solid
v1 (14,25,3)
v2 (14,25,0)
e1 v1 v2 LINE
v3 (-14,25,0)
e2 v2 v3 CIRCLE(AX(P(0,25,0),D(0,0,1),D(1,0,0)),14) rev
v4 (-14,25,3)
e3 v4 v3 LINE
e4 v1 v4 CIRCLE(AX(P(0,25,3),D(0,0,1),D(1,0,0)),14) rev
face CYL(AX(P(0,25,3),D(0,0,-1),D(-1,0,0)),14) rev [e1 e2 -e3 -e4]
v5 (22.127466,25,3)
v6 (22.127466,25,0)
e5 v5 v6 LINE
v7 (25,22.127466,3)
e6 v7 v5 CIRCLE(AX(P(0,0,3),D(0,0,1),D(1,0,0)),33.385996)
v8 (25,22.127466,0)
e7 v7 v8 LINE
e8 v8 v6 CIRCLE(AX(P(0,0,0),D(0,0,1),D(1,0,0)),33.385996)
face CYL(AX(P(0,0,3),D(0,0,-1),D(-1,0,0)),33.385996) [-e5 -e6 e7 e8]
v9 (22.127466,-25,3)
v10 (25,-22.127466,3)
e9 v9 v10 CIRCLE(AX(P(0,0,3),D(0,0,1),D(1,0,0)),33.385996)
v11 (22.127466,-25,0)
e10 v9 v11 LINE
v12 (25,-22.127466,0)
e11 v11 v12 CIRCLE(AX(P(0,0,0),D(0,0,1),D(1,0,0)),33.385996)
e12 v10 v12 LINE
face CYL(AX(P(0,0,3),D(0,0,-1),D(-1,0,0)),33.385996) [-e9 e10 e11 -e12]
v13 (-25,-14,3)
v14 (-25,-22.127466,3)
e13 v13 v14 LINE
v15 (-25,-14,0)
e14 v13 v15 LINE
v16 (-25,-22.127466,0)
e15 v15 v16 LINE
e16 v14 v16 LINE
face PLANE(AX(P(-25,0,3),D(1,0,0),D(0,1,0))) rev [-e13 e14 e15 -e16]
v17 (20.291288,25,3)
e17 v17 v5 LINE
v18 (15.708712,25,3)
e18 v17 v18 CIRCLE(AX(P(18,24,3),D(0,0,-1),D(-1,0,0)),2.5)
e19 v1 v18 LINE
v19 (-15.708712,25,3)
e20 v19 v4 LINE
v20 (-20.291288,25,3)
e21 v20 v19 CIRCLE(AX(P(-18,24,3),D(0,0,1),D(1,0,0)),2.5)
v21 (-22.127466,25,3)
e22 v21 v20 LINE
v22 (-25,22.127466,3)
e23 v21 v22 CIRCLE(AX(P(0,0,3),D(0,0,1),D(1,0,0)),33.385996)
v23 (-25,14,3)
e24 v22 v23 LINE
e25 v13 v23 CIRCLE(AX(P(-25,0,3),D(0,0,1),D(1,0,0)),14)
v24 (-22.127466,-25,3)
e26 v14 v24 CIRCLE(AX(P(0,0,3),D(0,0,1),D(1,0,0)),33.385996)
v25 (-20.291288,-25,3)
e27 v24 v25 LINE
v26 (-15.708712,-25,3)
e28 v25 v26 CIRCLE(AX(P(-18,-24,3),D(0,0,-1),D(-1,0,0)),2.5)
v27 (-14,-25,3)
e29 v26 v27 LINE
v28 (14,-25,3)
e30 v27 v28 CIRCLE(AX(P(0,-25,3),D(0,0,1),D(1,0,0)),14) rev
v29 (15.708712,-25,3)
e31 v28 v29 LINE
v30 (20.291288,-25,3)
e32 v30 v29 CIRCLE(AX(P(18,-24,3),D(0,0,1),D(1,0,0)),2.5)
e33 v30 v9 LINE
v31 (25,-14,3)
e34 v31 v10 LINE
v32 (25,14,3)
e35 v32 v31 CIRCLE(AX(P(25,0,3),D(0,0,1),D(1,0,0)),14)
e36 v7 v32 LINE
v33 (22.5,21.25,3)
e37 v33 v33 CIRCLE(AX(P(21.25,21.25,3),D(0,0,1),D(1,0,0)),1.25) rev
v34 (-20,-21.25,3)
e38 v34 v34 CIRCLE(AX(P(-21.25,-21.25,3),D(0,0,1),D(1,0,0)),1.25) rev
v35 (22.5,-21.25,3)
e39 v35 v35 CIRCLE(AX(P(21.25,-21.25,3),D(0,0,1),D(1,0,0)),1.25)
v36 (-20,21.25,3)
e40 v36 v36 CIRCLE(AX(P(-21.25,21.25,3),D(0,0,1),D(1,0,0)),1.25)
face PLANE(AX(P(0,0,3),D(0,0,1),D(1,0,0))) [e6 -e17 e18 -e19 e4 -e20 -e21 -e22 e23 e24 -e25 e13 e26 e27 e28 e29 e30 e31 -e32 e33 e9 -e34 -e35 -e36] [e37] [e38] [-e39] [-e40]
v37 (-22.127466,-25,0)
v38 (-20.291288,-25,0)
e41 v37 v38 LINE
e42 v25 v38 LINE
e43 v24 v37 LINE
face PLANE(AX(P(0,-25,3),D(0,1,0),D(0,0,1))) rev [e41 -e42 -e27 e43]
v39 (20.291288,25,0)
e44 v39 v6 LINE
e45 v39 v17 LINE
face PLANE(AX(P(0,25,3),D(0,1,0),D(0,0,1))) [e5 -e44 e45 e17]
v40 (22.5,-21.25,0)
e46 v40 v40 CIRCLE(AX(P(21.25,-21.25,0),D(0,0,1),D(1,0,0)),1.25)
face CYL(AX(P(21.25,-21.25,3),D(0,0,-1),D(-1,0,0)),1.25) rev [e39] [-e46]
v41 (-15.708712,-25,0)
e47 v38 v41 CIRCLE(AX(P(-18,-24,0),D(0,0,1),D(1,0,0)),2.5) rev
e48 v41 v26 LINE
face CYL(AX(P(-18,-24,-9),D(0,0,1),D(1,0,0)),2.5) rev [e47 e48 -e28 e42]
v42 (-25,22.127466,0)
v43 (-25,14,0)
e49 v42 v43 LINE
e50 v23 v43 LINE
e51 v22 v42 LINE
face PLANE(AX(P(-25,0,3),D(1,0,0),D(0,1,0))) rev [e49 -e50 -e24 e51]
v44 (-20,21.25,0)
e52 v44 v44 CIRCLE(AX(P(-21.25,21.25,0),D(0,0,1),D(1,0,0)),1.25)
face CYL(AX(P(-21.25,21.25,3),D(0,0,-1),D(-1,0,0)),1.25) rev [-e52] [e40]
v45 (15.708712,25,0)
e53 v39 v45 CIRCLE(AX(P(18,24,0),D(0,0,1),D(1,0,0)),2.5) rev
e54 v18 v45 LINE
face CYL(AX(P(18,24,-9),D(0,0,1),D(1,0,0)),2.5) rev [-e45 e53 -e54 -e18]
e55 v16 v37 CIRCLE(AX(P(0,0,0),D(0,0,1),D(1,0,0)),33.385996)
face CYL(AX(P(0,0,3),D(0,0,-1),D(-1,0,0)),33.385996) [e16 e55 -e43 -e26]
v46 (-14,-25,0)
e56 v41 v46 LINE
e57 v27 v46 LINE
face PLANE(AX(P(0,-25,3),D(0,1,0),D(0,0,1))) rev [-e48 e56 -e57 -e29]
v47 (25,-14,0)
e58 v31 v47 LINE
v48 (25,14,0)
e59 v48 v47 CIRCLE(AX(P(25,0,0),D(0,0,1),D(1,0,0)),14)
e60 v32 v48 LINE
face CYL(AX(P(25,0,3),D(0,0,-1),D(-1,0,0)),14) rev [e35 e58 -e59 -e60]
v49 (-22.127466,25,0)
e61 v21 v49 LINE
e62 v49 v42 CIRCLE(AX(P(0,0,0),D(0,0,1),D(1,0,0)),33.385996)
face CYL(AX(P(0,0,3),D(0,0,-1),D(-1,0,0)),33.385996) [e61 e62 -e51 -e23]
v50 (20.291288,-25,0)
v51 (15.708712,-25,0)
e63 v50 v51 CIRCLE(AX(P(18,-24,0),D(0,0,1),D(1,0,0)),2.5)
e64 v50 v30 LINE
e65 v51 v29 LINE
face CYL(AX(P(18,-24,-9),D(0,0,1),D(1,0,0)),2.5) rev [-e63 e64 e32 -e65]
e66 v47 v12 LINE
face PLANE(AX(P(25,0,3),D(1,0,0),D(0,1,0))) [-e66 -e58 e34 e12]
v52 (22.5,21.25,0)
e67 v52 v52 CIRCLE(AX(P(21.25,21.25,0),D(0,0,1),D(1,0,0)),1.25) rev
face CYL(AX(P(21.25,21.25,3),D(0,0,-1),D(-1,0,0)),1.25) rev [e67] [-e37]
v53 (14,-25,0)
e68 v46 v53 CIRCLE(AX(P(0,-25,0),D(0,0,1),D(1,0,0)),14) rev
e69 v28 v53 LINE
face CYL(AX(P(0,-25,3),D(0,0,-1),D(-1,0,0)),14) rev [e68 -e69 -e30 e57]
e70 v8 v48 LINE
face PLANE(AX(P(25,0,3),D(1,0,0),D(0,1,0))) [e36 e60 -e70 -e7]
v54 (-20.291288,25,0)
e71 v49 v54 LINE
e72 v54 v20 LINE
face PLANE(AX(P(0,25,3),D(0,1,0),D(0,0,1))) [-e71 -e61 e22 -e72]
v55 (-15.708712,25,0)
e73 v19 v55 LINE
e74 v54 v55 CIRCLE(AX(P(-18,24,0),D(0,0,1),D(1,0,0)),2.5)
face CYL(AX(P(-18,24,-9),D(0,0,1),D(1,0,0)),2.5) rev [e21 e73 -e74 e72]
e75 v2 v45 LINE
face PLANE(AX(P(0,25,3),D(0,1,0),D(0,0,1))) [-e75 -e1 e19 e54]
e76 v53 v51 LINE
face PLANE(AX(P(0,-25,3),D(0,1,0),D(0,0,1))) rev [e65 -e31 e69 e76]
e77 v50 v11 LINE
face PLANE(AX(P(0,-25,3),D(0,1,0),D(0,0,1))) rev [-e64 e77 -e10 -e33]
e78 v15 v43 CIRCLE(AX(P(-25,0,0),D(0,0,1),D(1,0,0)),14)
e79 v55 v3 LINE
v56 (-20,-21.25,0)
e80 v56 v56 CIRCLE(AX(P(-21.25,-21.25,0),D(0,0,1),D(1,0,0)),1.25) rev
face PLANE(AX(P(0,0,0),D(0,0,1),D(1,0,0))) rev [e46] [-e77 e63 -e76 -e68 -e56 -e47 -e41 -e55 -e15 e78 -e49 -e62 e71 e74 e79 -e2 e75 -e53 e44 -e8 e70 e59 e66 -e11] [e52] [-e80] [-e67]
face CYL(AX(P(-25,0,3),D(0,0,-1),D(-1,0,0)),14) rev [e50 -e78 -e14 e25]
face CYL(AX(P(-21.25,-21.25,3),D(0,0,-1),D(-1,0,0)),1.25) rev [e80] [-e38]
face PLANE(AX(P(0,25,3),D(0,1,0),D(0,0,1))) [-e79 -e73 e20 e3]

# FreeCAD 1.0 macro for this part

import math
import FreeCAD as App
import Part
import Sketcher
Q = App.Units.Quantity

doc = App.newDocument("Part")
params = doc.addObject("Spreadsheet::Sheet", "Params")
for row, (alias, value) in enumerate([
    ("sketch1_radius", "14 mm"),
    ("sketch1_diameter", "2.5 mm"),
    ("pad1_length", "3 mm"),
    ("sketch2_diameter", "5 mm"),
    ("pocket1_length", "12 mm"),
], start=1):
    params.set(f"A{row}", alias)
    params.set(f"B{row}", "=" + value)
    params.setAlias(f"B{row}", alias)

body = doc.addObject("PartDesign::Body", "Body")

sketch1 = body.newObject("Sketcher::SketchObject", "Sketch")
sketch1.AttachmentSupport = (doc.getObject("XY_Plane"), [""])
sketch1.MapMode = "FlatFace"
sketch1.addGeometry(Part.LineSegment(App.Vector(-14, 25, 0), App.Vector(-22.127466, 25, 0)), False)
sketch1.addGeometry(Part.ArcOfCircle(Part.Circle(App.Vector(0, 0, 0), App.Vector(0, 0, 1), 33.385996), math.radians(131.511998), math.radians(138.488002)), False)
sketch1.addGeometry(Part.LineSegment(App.Vector(-25, 22.127466, 0), App.Vector(-25, 14, 0)), False)
sketch1.addGeometry(Part.ArcOfCircle(Part.Circle(App.Vector(-25, 0, 0), App.Vector(0, 0, 1), 14), math.radians(0), math.radians(90)), False)
sketch1.addGeometry(Part.ArcOfCircle(Part.Circle(App.Vector(-25, 0, 0), App.Vector(0, 0, 1), 14), math.radians(-90), math.radians(0)), False)
sketch1.addGeometry(Part.LineSegment(App.Vector(-25, -14, 0), App.Vector(-25, -22.127466, 0)), False)
sketch1.addGeometry(Part.ArcOfCircle(Part.Circle(App.Vector(0, 0, 0), App.Vector(0, 0, 1), 33.385996), math.radians(-138.488002), math.radians(-131.511998)), False)
sketch1.addGeometry(Part.LineSegment(App.Vector(-22.127466, -25, 0), App.Vector(-14, -25, 0)), False)
sketch1.addGeometry(Part.ArcOfCircle(Part.Circle(App.Vector(0, -25, 0), App.Vector(0, 0, 1), 14), math.radians(0), math.radians(180)), False)
sketch1.addGeometry(Part.LineSegment(App.Vector(14, -25, 0), App.Vector(22.127466, -25, 0)), False)
sketch1.addGeometry(Part.ArcOfCircle(Part.Circle(App.Vector(0, 0, 0), App.Vector(0, 0, 1), 33.385996), math.radians(-48.488002), math.radians(-41.511998)), False)
sketch1.addGeometry(Part.LineSegment(App.Vector(25, -22.127466, 0), App.Vector(25, -14, 0)), False)
sketch1.addGeometry(Part.ArcOfCircle(Part.Circle(App.Vector(25, 0, 0), App.Vector(0, 0, 1), 14), math.radians(90), math.radians(270)), False)
sketch1.addGeometry(Part.LineSegment(App.Vector(25, 14, 0), App.Vector(25, 22.127466, 0)), False)
sketch1.addGeometry(Part.ArcOfCircle(Part.Circle(App.Vector(0, 0, 0), App.Vector(0, 0, 1), 33.385996), math.radians(41.511998), math.radians(48.488002)), False)
sketch1.addGeometry(Part.LineSegment(App.Vector(22.127466, 25, 0), App.Vector(14, 25, 0)), False)
sketch1.addGeometry(Part.ArcOfCircle(Part.Circle(App.Vector(0, 25, 0), App.Vector(0, 0, 1), 14), math.radians(180), math.radians(360)), False)
sketch1.addGeometry(Part.Circle(App.Vector(-21.25, -21.25, 0), App.Vector(0, 0, 1), 1.25), False)
sketch1.addGeometry(Part.Circle(App.Vector(21.25, -21.25, 0), App.Vector(0, 0, 1), 1.25), False)
sketch1.addGeometry(Part.Circle(App.Vector(-21.25, 21.25, 0), App.Vector(0, 0, 1), 1.25), False)
sketch1.addGeometry(Part.Circle(App.Vector(21.25, 21.25, 0), App.Vector(0, 0, 1), 1.25), False)
sketch1.addConstraint(Sketcher.Constraint("Coincident", 0, 2, 1, 1))
sketch1.addConstraint(Sketcher.Constraint("Coincident", 1, 2, 2, 1))
sketch1.addConstraint(Sketcher.Constraint("Coincident", 2, 2, 3, 2))
sketch1.addConstraint(Sketcher.Constraint("Tangent", 3, 1, 4, 2))
sketch1.addConstraint(Sketcher.Constraint("Coincident", 4, 1, 5, 1))
sketch1.addConstraint(Sketcher.Constraint("Coincident", 5, 2, 6, 1))
sketch1.addConstraint(Sketcher.Constraint("Coincident", 6, 2, 7, 1))
sketch1.addConstraint(Sketcher.Constraint("Coincident", 7, 2, 8, 2))
sketch1.addConstraint(Sketcher.Constraint("Coincident", 8, 1, 9, 1))
sketch1.addConstraint(Sketcher.Constraint("Coincident", 9, 2, 10, 1))
sketch1.addConstraint(Sketcher.Constraint("Coincident", 10, 2, 11, 1))
sketch1.addConstraint(Sketcher.Constraint("Coincident", 11, 2, 12, 2))
sketch1.addConstraint(Sketcher.Constraint("Coincident", 12, 1, 13, 1))
sketch1.addConstraint(Sketcher.Constraint("Coincident", 13, 2, 14, 1))
sketch1.addConstraint(Sketcher.Constraint("Coincident", 14, 2, 15, 1))
sketch1.addConstraint(Sketcher.Constraint("Coincident", 15, 2, 16, 2))
sketch1.addConstraint(Sketcher.Constraint("Coincident", 16, 1, 0, 1))
sketch1.addConstraint(Sketcher.Constraint("Horizontal", 0))
sketch1.addConstraint(Sketcher.Constraint("Vertical", 2))
sketch1.addConstraint(Sketcher.Constraint("Vertical", 5))
sketch1.addConstraint(Sketcher.Constraint("Horizontal", 7))
sketch1.addConstraint(Sketcher.Constraint("Horizontal", 9))
sketch1.addConstraint(Sketcher.Constraint("Vertical", 11))
sketch1.addConstraint(Sketcher.Constraint("Vertical", 13))
sketch1.addConstraint(Sketcher.Constraint("Horizontal", 15))
sketch1.addConstraint(Sketcher.Constraint("Coincident", 1, 3, -1, 1))
sketch1.addConstraint(Sketcher.Constraint("Coincident", 6, 3, -1, 1))
sketch1.addConstraint(Sketcher.Constraint("Coincident", 10, 3, -1, 1))
sketch1.addConstraint(Sketcher.Constraint("Coincident", 14, 3, -1, 1))
sketch1.addConstraint(Sketcher.Constraint("Equal", 3, 4))
sketch1.addConstraint(Sketcher.Constraint("Equal", 1, 6))
sketch1.addConstraint(Sketcher.Constraint("Equal", 4, 8))
sketch1.addConstraint(Sketcher.Constraint("Equal", 6, 10))
sketch1.addConstraint(Sketcher.Constraint("Equal", 8, 12))
sketch1.addConstraint(Sketcher.Constraint("Equal", 10, 14))
sketch1.addConstraint(Sketcher.Constraint("Equal", 12, 16))
sketch1.addConstraint(Sketcher.Constraint("Equal", 17, 18))
sketch1.addConstraint(Sketcher.Constraint("Equal", 18, 19))
sketch1.addConstraint(Sketcher.Constraint("Equal", 19, 20))
sketch1.addConstraint(Sketcher.Constraint("Symmetric", 3, 3, 12, 3, -1, 1))
sketch1.addConstraint(Sketcher.Constraint("Symmetric", 8, 3, 16, 3, -1, 1))
sketch1.addConstraint(Sketcher.Constraint("Symmetric", 18, 3, 19, 3, -1, 1))
sketch1.addConstraint(Sketcher.Constraint("Symmetric", 17, 3, 20, 3, -1, 1))
sketch1.addConstraint(Sketcher.Constraint("Symmetric", 17, 3, 18, 3, -2))
sketch1.addConstraint(Sketcher.Constraint("Symmetric", 7, 2, 8, 1, -2))
sketch1.addConstraint(Sketcher.Constraint("Symmetric", 4, 1, 11, 2, -2))
sketch1.addConstraint(Sketcher.Constraint("PointOnObject", 3, 1, -1))
sketch1.addConstraint(Sketcher.Constraint("Horizontal", 16, 3, 0, 2))
sketch1.addConstraint(Sketcher.Constraint("Horizontal", 8, 3, 6, 2))
sketch1.addConstraint(Sketcher.Constraint("Horizontal", 1, 2, 13, 2))
sketch1.addConstraint(Sketcher.Constraint("Horizontal", 0, 2, 14, 2))
sketch1.addConstraint(Sketcher.Constraint("Vertical", 4, 3, 1, 2))
sketch1.addConstraint(Sketcher.Constraint("Vertical", 2, 2, 4, 1))
sketch1.addConstraint(Sketcher.Constraint("Equal", 15, 2))
sketch1.addConstraint(Sketcher.Constraint("Radius", 3, Q("14 mm")))
sketch1.addConstraint(Sketcher.Constraint("Diameter", 17, Q("2.5 mm")))
sketch1.addConstraint(Sketcher.Constraint("DistanceX", 3, 3, -1, 1, Q("25 mm")))
sketch1.addConstraint(Sketcher.Constraint("DistanceX", 17, 3, -1, 1, Q("21.25 mm")))
sketch1.addConstraint(Sketcher.Constraint("DistanceY", 17, 3, -1, 1, Q("21.25 mm")))
sketch1.addConstraint(Sketcher.Constraint("Radius", 1, Q("33.385996 mm")))
sketch1.setExpression("Constraints[54]", "Params.sketch1_radius")
sketch1.setExpression("Constraints[55]", "Params.sketch1_diameter")
pad1 = body.newObject("PartDesign::Pad", "Pad")
pad1.Profile = sketch1
pad1.setExpression("Length", "Params.pad1_length")

sketch2 = body.newObject("Sketcher::SketchObject", "Sketch001")
sketch2.AttachmentSupport = (doc.getObject("XY_Plane"), [""])
sketch2.MapMode = "FlatFace"
sketch2.AttachmentOffset = App.Placement(App.Vector(0, 0, 3), App.Rotation())
sketch2.addGeometry(Part.ArcOfCircle(Part.Circle(App.Vector(18, 24, 0), App.Vector(0, 0, 1), 2.5), math.radians(23.578178), math.radians(156.421822)), False)
sketch2.addGeometry(Part.ArcOfCircle(Part.Circle(App.Vector(18, 24, 0), App.Vector(0, 0, 1), 2.5), math.radians(156.421822), math.radians(360)), False)
sketch2.addGeometry(Part.ArcOfCircle(Part.Circle(App.Vector(18, 24, 0), App.Vector(0, 0, 1), 2.5), math.radians(0), math.radians(23.578178)), False)
sketch2.addGeometry(Part.ArcOfCircle(Part.Circle(App.Vector(18, -24, 0), App.Vector(0, 0, 1), 2.5), math.radians(0), math.radians(203.578178)), False)
sketch2.addGeometry(Part.ArcOfCircle(Part.Circle(App.Vector(18, -24, 0), App.Vector(0, 0, 1), 2.5), math.radians(-156.421822), math.radians(-23.578178)), False)
sketch2.addGeometry(Part.ArcOfCircle(Part.Circle(App.Vector(18, -24, 0), App.Vector(0, 0, 1), 2.5), math.radians(-23.578178), math.radians(0)), False)
sketch2.addGeometry(Part.Circle(App.Vector(-18, 24, 0), App.Vector(0, 0, 1), 2.5), False)
sketch2.addGeometry(Part.Circle(App.Vector(-18, -24, 0), App.Vector(0, 0, 1), 2.5), False)
sketch2.addConstraint(Sketcher.Constraint("Tangent", 0, 2, 1, 1))
sketch2.addConstraint(Sketcher.Constraint("Tangent", 1, 2, 2, 1))
sketch2.addConstraint(Sketcher.Constraint("Tangent", 2, 2, 0, 1))
sketch2.addConstraint(Sketcher.Constraint("Tangent", 3, 2, 4, 1))
sketch2.addConstraint(Sketcher.Constraint("Tangent", 4, 2, 5, 1))
sketch2.addConstraint(Sketcher.Constraint("Tangent", 5, 2, 3, 1))
sketch2.addConstraint(Sketcher.Constraint("Equal", 2, 3))
sketch2.addConstraint(Sketcher.Constraint("Equal", 5, 6))
sketch2.addConstraint(Sketcher.Constraint("Equal", 6, 7))
sketch2.addConstraint(Sketcher.Constraint("Symmetric", 3, 3, 6, 3, -1, 1))
sketch2.addConstraint(Sketcher.Constraint("Symmetric", 0, 3, 7, 3, -1, 1))
sketch2.addConstraint(Sketcher.Constraint("Symmetric", 0, 3, 6, 3, -2))
sketch2.addConstraint(Sketcher.Constraint("Horizontal", 6, 3, 1, 2))
sketch2.addConstraint(Sketcher.Constraint("Horizontal", 0, 2, 2, 2))
sketch2.addConstraint(Sketcher.Constraint("Horizontal", 3, 2, 4, 2))
sketch2.addConstraint(Sketcher.Constraint("Horizontal", 7, 3, 5, 2))
sketch2.addConstraint(Sketcher.Constraint("Vertical", 0, 2, 3, 2))
sketch2.addConstraint(Sketcher.Constraint("Diameter", 6, Q("5 mm")))
sketch2.addConstraint(Sketcher.Constraint("DistanceX", -1, 1, 0, 3, Q("18 mm")))
sketch2.addConstraint(Sketcher.Constraint("DistanceY", -1, 1, 0, 3, Q("24 mm")))
sketch2.addConstraint(Sketcher.Constraint("DistanceY", -1, 1, 0, 2, Q("25 mm")))
sketch2.setExpression("Constraints[17]", "Params.sketch2_diameter")
pocket1 = body.newObject("PartDesign::Pocket", "Pocket")
pocket1.Profile = sketch2
pocket1.setExpression("Length", "Params.pocket1_length")

doc.recompute()
